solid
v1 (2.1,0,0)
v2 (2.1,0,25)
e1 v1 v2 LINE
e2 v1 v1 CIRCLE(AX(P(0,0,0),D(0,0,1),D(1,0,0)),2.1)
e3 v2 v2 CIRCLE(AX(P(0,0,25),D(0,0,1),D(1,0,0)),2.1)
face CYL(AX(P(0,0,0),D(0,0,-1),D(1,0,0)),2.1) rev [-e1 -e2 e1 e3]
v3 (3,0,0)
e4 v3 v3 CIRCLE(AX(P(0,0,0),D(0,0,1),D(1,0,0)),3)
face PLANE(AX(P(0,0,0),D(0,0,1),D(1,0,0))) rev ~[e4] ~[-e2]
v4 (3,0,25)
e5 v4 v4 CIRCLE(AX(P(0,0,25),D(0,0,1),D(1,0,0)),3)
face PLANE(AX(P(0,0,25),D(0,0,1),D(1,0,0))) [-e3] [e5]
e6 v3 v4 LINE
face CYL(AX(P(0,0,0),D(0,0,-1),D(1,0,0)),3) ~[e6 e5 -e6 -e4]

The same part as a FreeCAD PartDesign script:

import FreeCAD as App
import Part
import Sketcher

V = App.Vector
Q = App.Units.Quantity

doc = App.newDocument("Part")
body = doc.addObject("PartDesign::Body", "Body")

# Sketch on XY plane
sketch1 = body.newObject("Sketcher::SketchObject", "Sketch")
sketch1.AttachmentSupport = (doc.getObject("XY_Plane"), [""])
sketch1.MapMode = "FlatFace"
sketch1.addGeometry([
    Part.Circle(V(0, 0, 0), V(0, 0, 1), 3),
    Part.Circle(V(0, 0, 0), V(0, 0, 1), 2.1),
], False)
sketch1.addConstraint([
    Sketcher.Constraint("Coincident", 0, 3, -1, 1),
    Sketcher.Constraint("Coincident", 1, 3, -1, 1),
    Sketcher.Constraint("Diameter", 0, Q("6 mm")),
    Sketcher.Constraint("Diameter", 1, Q("4.2 mm")),
])
pad1 = body.newObject("PartDesign::Pad", "Pad")
pad1.Profile = sketch1
pad1.Length = 25

doc.recompute()
